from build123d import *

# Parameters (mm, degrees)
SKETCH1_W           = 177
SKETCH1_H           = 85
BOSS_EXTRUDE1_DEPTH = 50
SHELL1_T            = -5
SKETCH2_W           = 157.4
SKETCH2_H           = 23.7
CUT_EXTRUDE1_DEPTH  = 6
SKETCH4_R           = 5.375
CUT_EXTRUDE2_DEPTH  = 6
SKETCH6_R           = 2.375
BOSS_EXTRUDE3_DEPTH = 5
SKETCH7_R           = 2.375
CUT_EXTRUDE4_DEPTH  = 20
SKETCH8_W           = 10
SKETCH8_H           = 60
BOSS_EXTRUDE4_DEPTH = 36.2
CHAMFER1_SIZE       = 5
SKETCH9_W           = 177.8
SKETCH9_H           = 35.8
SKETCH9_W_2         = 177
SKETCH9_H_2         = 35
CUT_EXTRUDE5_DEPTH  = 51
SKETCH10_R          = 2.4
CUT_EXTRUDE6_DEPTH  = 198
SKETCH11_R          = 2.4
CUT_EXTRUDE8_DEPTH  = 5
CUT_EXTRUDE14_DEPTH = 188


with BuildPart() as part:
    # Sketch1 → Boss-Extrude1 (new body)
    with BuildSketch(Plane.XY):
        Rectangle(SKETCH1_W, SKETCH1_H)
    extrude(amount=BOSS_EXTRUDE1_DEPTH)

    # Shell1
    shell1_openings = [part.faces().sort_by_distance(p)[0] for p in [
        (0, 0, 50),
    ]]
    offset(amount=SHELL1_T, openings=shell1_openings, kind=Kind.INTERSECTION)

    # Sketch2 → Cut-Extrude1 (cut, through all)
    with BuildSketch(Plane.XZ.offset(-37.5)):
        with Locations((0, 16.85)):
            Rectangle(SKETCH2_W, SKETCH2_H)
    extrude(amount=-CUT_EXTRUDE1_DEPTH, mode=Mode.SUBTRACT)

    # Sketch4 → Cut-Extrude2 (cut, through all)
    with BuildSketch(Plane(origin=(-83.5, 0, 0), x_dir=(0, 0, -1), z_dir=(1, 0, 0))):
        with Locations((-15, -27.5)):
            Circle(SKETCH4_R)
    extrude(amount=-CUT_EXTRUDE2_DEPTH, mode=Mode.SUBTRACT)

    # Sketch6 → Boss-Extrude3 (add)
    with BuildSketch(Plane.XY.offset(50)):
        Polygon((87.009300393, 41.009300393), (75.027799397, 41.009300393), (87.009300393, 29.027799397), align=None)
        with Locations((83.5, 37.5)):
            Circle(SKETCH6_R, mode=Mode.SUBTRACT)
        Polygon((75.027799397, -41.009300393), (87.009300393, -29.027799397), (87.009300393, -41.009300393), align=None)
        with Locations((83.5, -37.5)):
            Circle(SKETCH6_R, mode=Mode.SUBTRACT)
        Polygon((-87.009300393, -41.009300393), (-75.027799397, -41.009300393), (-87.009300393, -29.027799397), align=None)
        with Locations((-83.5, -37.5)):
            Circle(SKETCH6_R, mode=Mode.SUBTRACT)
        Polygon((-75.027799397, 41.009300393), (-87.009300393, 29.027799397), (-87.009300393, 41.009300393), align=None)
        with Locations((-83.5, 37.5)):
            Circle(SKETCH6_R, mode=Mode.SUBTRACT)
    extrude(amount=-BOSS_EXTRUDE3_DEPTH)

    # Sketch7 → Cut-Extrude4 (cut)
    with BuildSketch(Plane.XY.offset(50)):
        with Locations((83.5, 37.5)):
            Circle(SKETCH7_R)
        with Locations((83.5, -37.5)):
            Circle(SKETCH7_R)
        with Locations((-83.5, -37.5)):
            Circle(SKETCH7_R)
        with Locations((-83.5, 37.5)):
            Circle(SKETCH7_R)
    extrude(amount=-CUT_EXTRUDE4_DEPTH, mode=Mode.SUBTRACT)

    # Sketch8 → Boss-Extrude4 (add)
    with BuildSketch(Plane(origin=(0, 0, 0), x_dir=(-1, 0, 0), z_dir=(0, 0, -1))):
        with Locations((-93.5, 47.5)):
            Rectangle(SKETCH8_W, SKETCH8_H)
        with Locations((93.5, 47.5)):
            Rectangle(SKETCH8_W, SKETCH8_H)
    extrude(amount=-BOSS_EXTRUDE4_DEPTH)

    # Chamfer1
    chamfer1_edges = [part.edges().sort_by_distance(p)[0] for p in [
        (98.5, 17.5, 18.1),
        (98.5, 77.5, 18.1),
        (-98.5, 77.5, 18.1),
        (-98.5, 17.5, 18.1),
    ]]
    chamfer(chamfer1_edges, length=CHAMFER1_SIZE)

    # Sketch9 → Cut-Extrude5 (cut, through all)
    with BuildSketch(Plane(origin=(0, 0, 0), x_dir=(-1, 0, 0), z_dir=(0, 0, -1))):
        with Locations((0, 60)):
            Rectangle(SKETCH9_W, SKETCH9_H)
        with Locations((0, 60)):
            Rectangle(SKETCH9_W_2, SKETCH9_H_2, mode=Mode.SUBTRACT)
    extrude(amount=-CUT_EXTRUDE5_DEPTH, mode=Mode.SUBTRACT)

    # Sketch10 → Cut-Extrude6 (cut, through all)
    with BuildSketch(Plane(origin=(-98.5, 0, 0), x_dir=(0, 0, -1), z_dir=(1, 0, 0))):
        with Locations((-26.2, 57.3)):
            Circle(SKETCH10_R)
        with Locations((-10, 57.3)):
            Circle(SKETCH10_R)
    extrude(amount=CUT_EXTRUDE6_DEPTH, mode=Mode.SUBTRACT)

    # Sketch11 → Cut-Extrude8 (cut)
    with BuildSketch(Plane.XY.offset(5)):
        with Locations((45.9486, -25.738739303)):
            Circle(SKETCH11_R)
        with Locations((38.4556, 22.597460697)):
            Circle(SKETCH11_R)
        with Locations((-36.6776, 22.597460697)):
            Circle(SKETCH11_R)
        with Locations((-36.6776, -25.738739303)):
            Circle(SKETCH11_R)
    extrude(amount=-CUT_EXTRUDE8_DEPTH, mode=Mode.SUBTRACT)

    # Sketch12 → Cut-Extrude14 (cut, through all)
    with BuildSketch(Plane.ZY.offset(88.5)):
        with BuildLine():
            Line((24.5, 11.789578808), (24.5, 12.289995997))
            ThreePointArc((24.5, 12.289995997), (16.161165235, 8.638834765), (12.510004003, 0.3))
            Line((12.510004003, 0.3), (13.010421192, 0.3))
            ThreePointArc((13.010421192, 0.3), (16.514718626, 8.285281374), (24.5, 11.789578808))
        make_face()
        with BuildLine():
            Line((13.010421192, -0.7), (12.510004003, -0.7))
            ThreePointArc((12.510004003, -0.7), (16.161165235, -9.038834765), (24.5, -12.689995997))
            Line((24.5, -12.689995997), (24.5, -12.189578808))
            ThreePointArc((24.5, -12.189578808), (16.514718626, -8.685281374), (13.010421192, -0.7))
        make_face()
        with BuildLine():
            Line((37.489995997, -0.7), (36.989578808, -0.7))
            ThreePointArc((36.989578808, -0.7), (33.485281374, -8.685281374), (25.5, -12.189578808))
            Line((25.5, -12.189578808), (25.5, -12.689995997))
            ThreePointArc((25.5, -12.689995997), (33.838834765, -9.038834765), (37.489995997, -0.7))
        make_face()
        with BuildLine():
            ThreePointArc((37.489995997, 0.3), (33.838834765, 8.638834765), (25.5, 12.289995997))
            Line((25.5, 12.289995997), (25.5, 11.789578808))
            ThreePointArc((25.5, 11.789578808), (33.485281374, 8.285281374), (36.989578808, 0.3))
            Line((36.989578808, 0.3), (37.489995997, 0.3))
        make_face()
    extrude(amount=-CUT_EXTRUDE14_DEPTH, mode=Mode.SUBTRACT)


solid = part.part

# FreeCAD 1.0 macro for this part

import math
import FreeCAD as App
import Part
import Sketcher
Q = App.Units.Quantity


def edges_at(feature, points):
    """Names of the edges that pass closest to the given points."""
    edges = feature.Shape.Edges
    near = lambda p: min(range(len(edges)), key=lambda i: edges[i].distToShape(Part.Vertex(*p))[0])
    return sorted({f"Edge{near(p) + 1}" for p in points})


def faces_at(feature, points):
    """Names of the faces that lie closest to the given points."""
    faces = feature.Shape.Faces
    near = lambda p: min(range(len(faces)), key=lambda i: faces[i].distToShape(Part.Vertex(*p))[0])
    return sorted({f"Face{near(p) + 1}" for p in points})


def add_polygon(sketch, points):
    """Adds a closed chain of lines whose ends are joined by coincident constraints."""
    first, n = sketch.GeometryCount, len(points)
    for a, b in zip(points, points[1:] + points[:1]):
        sketch.addGeometry(Part.LineSegment(App.Vector(*a, 0), App.Vector(*b, 0)), False)
    for i in range(n):
        sketch.addConstraint(Sketcher.Constraint("Coincident", first + i, 2, first + (i + 1) % n, 1))

doc = App.newDocument("Part")
body = doc.addObject("PartDesign::Body", "Body")

# Sketch on XY plane
sketch1 = body.newObject("Sketcher::SketchObject", "Sketch")
sketch1.AttachmentSupport = (doc.getObject("XY_Plane"), [""])
sketch1.MapMode = "FlatFace"
add_polygon(sketch1, [(-88.5, 42.5), (-88.5, -42.5), (88.5, -42.5), (88.5, 42.5)])  # lines 0-3
sketch1.addConstraint(Sketcher.Constraint("Vertical", 0))
sketch1.addConstraint(Sketcher.Constraint("Horizontal", 1))
sketch1.addConstraint(Sketcher.Constraint("Vertical", 2))
sketch1.addConstraint(Sketcher.Constraint("Horizontal", 3))
sketch1.addConstraint(Sketcher.Constraint("Symmetric", 0, 2, 2, 2, -1, 1))
sketch1.addConstraint(Sketcher.Constraint("DistanceX", 1, 1, 1, 2, Q("177 mm")))
sketch1.addConstraint(Sketcher.Constraint("DistanceY", 0, 2, 0, 1, Q("85 mm")))
pad1 = body.newObject("PartDesign::Pad", "Pad")
pad1.Profile = sketch1
pad1.Length = 50
doc.recompute()

thickness = body.newObject("PartDesign::Thickness", "Thickness")
thickness.Base = (pad1, faces_at(pad1, [(0, 0, 50)]))
thickness.Value = 5
thickness.Reversed = True
thickness.Join = "Intersection"

# Sketch on XZ plane
sketch2 = body.newObject("Sketcher::SketchObject", "Sketch001")
sketch2.AttachmentSupport = (doc.getObject("XZ_Plane"), [""])
sketch2.MapMode = "FlatFace"
sketch2.AttachmentOffset = App.Placement(App.Vector(0, 0, -37.5), App.Rotation())
add_polygon(sketch2, [(-78.7, 28.7), (-78.7, 5), (78.7, 5), (78.7, 28.7)])  # lines 0-3
sketch2.addConstraint(Sketcher.Constraint("Vertical", 0))
sketch2.addConstraint(Sketcher.Constraint("Horizontal", 1))
sketch2.addConstraint(Sketcher.Constraint("Vertical", 2))
sketch2.addConstraint(Sketcher.Constraint("Horizontal", 3))
sketch2.addConstraint(Sketcher.Constraint("DistanceX", 1, 1, 1, 2, Q("157.4 mm")))
sketch2.addConstraint(Sketcher.Constraint("DistanceY", 0, 2, 0, 1, Q("23.7 mm")))
sketch2.addConstraint(Sketcher.Constraint("DistanceY", -1, 1, 0, 2, Q("5 mm")))
sketch2.addConstraint(Sketcher.Constraint("DistanceX", 0, 2, -1, 1, Q("78.7 mm")))
pocket1 = body.newObject("PartDesign::Pocket", "Pocket")
pocket1.Profile = sketch2
pocket1.Type = "ThroughAll"

# Sketch on YZ plane
sketch3 = body.newObject("Sketcher::SketchObject", "Sketch002")
sketch3.AttachmentSupport = (doc.getObject("YZ_Plane"), [""])
sketch3.MapMode = "FlatFace"
sketch3.AttachmentOffset = App.Placement(App.Vector(0, 0, -83.5), App.Rotation())
sketch3.addGeometry(Part.Circle(App.Vector(-27.5, 15, 0), App.Vector(0, 0, 1), 5.375), False)
sketch3.addConstraint(Sketcher.Constraint("Diameter", 0, Q("10.75 mm")))
sketch3.addConstraint(Sketcher.Constraint("DistanceY", -1, 1, 0, 3, Q("15 mm")))
sketch3.addConstraint(Sketcher.Constraint("DistanceX", 0, 3, -1, 1, Q("27.5 mm")))
pocket2 = body.newObject("PartDesign::Pocket", "Pocket001")
pocket2.Profile = sketch3
pocket2.Type = "ThroughAll"

# Sketch on XY plane
sketch4 = body.newObject("Sketcher::SketchObject", "Sketch003")
sketch4.AttachmentSupport = (doc.getObject("XY_Plane"), [""])
sketch4.MapMode = "FlatFace"
sketch4.AttachmentOffset = App.Placement(App.Vector(0, 0, 50), App.Rotation())
add_polygon(sketch4, [(87.0093, 41.0093), (75.027799, 41.0093), (87.0093, 29.027799)])  # lines 0-2
sketch4.addGeometry(Part.Circle(App.Vector(83.5, 37.5, 0), App.Vector(0, 0, 1), 2.375), False)  # 3
add_polygon(sketch4, [(87.0093, -29.027799), (75.027799, -41.0093), (87.0093, -41.0093)])  # lines 4-6
sketch4.addGeometry(Part.Circle(App.Vector(83.5, -37.5, 0), App.Vector(0, 0, 1), 2.375), False)  # 7
add_polygon(sketch4, [(-87.0093, -41.0093), (-75.027799, -41.0093), (-87.0093, -29.027799)])  # lines 8-10
sketch4.addGeometry(Part.Circle(App.Vector(-83.5, -37.5, 0), App.Vector(0, 0, 1), 2.375), False)  # 11
add_polygon(sketch4, [(-87.0093, 29.027799), (-75.027799, 41.0093), (-87.0093, 41.0093)])  # lines 12-14
sketch4.addGeometry(Part.Circle(App.Vector(-83.5, 37.5, 0), App.Vector(0, 0, 1), 2.375), False)  # 15
sketch4.addConstraint(Sketcher.Constraint("Horizontal", 0))
sketch4.addConstraint(Sketcher.Constraint("Vertical", 2))
sketch4.addConstraint(Sketcher.Constraint("Horizontal", 5))
sketch4.addConstraint(Sketcher.Constraint("Vertical", 6))
sketch4.addConstraint(Sketcher.Constraint("Horizontal", 8))
sketch4.addConstraint(Sketcher.Constraint("Vertical", 10))
sketch4.addConstraint(Sketcher.Constraint("Horizontal", 13))
sketch4.addConstraint(Sketcher.Constraint("Vertical", 14))
sketch4.addConstraint(Sketcher.Constraint("Equal", 3, 7))
sketch4.addConstraint(Sketcher.Constraint("Equal", 7, 11))
sketch4.addConstraint(Sketcher.Constraint("Equal", 11, 15))
sketch4.addConstraint(Sketcher.Constraint("Symmetric", 3, 3, 11, 3, -1, 1))
sketch4.addConstraint(Sketcher.Constraint("Symmetric", 7, 3, 15, 3, -1, 1))
sketch4.addConstraint(Sketcher.Constraint("Symmetric", 0, 2, 8, 2, -1, 1))
sketch4.addConstraint(Sketcher.Constraint("Symmetric", 1, 2, 9, 2, -1, 1))
sketch4.addConstraint(Sketcher.Constraint("Symmetric", 4, 2, 12, 2, -1, 1))
sketch4.addConstraint(Sketcher.Constraint("Symmetric", 6, 2, 14, 2, -1, 1))
sketch4.addConstraint(Sketcher.Constraint("Symmetric", 7, 3, 11, 3, -2))
sketch4.addConstraint(Sketcher.Constraint("Symmetric", 4, 2, 8, 2, -2))
sketch4.addConstraint(Sketcher.Constraint("Symmetric", 6, 2, 9, 2, -2))
sketch4.addConstraint(Sketcher.Constraint("Perpendicular", 1, 4))
sketch4.addConstraint(Sketcher.Constraint("Diameter", 3, Q("4.75 mm")))
sketch4.addConstraint(Sketcher.Constraint("DistanceY", 7, 3, 3, 3, Q("75 mm")))
sketch4.addConstraint(Sketcher.Constraint("DistanceX", 11, 3, 7, 3, Q("167 mm")))
sketch4.addConstraint(Sketcher.Constraint("DistanceX", 0, 2, 0, 1, Q("11.981501 mm")))
sketch4.addConstraint(Sketcher.Constraint("DistanceX", -1, 1, 0, 2, Q("75.027799 mm")))
sketch4.addConstraint(Sketcher.Constraint("DistanceY", -1, 1, 0, 2, Q("41.0093 mm")))
pad2 = body.newObject("PartDesign::Pad", "Pad001")
pad2.Profile = sketch4
pad2.Length = 5
pad2.Reversed = True

# Sketch on XY plane
sketch5 = body.newObject("Sketcher::SketchObject", "Sketch004")
sketch5.AttachmentSupport = (doc.getObject("XY_Plane"), [""])
sketch5.MapMode = "FlatFace"
sketch5.AttachmentOffset = App.Placement(App.Vector(0, 0, 50), App.Rotation())
sketch5.addGeometry(Part.Circle(App.Vector(83.5, 37.5, 0), App.Vector(0, 0, 1), 2.375), False)
sketch5.addGeometry(Part.Circle(App.Vector(83.5, -37.5, 0), App.Vector(0, 0, 1), 2.375), False)
sketch5.addGeometry(Part.Circle(App.Vector(-83.5, -37.5, 0), App.Vector(0, 0, 1), 2.375), False)
sketch5.addGeometry(Part.Circle(App.Vector(-83.5, 37.5, 0), App.Vector(0, 0, 1), 2.375), False)
sketch5.addConstraint(Sketcher.Constraint("Equal", 0, 1))
sketch5.addConstraint(Sketcher.Constraint("Equal", 1, 2))
sketch5.addConstraint(Sketcher.Constraint("Equal", 2, 3))
sketch5.addConstraint(Sketcher.Constraint("Symmetric", 0, 3, 2, 3, -1, 1))
sketch5.addConstraint(Sketcher.Constraint("Symmetric", 1, 3, 3, 3, -1, 1))
sketch5.addConstraint(Sketcher.Constraint("Symmetric", 1, 3, 2, 3, -2))
sketch5.addConstraint(Sketcher.Constraint("Diameter", 0, Q("4.75 mm")))
sketch5.addConstraint(Sketcher.Constraint("DistanceY", 1, 3, 0, 3, Q("75 mm")))
sketch5.addConstraint(Sketcher.Constraint("DistanceX", 2, 3, 1, 3, Q("167 mm")))
pocket3 = body.newObject("PartDesign::Pocket", "Pocket002")
pocket3.Profile = sketch5
pocket3.Length = 20

# Sketch on XY plane
sketch6 = body.newObject("Sketcher::SketchObject", "Sketch005")
sketch6.AttachmentSupport = (doc.getObject("XY_Plane"), [""])
sketch6.MapMode = "FlatFace"
add_polygon(sketch6, [(98.5, 77.5), (98.5, 17.5), (88.5, 17.5), (88.5, 77.5)])  # lines 0-3
add_polygon(sketch6, [(-88.5, 77.5), (-88.5, 17.5), (-98.5, 17.5), (-98.5, 77.5)])  # lines 4-7
sketch6.addConstraint(Sketcher.Constraint("Vertical", 0))
sketch6.addConstraint(Sketcher.Constraint("Horizontal", 1))
sketch6.addConstraint(Sketcher.Constraint("Vertical", 2))
sketch6.addConstraint(Sketcher.Constraint("Horizontal", 3))
sketch6.addConstraint(Sketcher.Constraint("Vertical", 4))
sketch6.addConstraint(Sketcher.Constraint("Horizontal", 5))
sketch6.addConstraint(Sketcher.Constraint("Vertical", 6))
sketch6.addConstraint(Sketcher.Constraint("Horizontal", 7))
sketch6.addConstraint(Sketcher.Constraint("Symmetric", 1, 2, 4, 2, -2))
sketch6.addConstraint(Sketcher.Constraint("Symmetric", 3, 2, 6, 2, -2))
sketch6.addConstraint(Sketcher.Constraint("DistanceX", 1, 2, 1, 1, Q("10 mm")))
sketch6.addConstraint(Sketcher.Constraint("DistanceY", 0, 2, 0, 1, Q("60 mm")))
sketch6.addConstraint(Sketcher.Constraint("DistanceX", 4, 2, 1, 2, Q("177 mm")))
sketch6.addConstraint(Sketcher.Constraint("DistanceY", -1, 1, 0, 2, Q("17.5 mm")))
pad3 = body.newObject("PartDesign::Pad", "Pad002")
pad3.Profile = sketch6
pad3.Length = 36.2
doc.recompute()

chamfer = body.newObject("PartDesign::Chamfer", "Chamfer")
chamfer.Base = (pad3, edges_at(pad3, [
    (98.5, 17.5, 18.1),
    (98.5, 77.5, 18.1),
    (-98.5, 77.5, 18.1),
    (-98.5, 17.5, 18.1),
]))
chamfer.Size = 5

# Sketch on XY plane
sketch7 = body.newObject("Sketcher::SketchObject", "Sketch006")
sketch7.AttachmentSupport = (doc.getObject("XY_Plane"), [""])
sketch7.MapMode = "FlatFace"
add_polygon(sketch7, [(88.9, 77.9), (88.9, 42.1), (-88.9, 42.1), (-88.9, 77.9)])  # lines 0-3
add_polygon(sketch7, [(-88.5, 42.5), (88.5, 42.5), (88.5, 77.5), (-88.5, 77.5)])  # lines 4-7
sketch7.addConstraint(Sketcher.Constraint("Vertical", 0))
sketch7.addConstraint(Sketcher.Constraint("Horizontal", 1))
sketch7.addConstraint(Sketcher.Constraint("Vertical", 2))
sketch7.addConstraint(Sketcher.Constraint("Horizontal", 3))
sketch7.addConstraint(Sketcher.Constraint("Horizontal", 4))
sketch7.addConstraint(Sketcher.Constraint("Vertical", 5))
sketch7.addConstraint(Sketcher.Constraint("Horizontal", 6))
sketch7.addConstraint(Sketcher.Constraint("Vertical", 7))
sketch7.addConstraint(Sketcher.Constraint("DistanceX", 4, 1, 4, 2, Q("177 mm")))
sketch7.addConstraint(Sketcher.Constraint("DistanceY", 5, 1, 5, 2, Q("35 mm")))
sketch7.addConstraint(Sketcher.Constraint("DistanceX", 1, 2, 1, 1, Q("177.8 mm")))
sketch7.addConstraint(Sketcher.Constraint("DistanceY", 0, 2, 0, 1, Q("35.8 mm")))
sketch7.addConstraint(Sketcher.Constraint("DistanceX", -1, 1, 0, 2, Q("88.9 mm")))
sketch7.addConstraint(Sketcher.Constraint("DistanceY", -1, 1, 0, 2, Q("42.1 mm")))
sketch7.addConstraint(Sketcher.Constraint("DistanceX", -1, 1, 4, 2, Q("88.5 mm")))
sketch7.addConstraint(Sketcher.Constraint("DistanceY", -1, 1, 4, 2, Q("42.5 mm")))
pocket4 = body.newObject("PartDesign::Pocket", "Pocket003")
pocket4.Profile = sketch7
pocket4.Type = "ThroughAll"
pocket4.Reversed = True

# Sketch on YZ plane
sketch8 = body.newObject("Sketcher::SketchObject", "Sketch007")
sketch8.AttachmentSupport = (doc.getObject("YZ_Plane"), [""])
sketch8.MapMode = "FlatFace"
sketch8.AttachmentOffset = App.Placement(App.Vector(0, 0, -98.5), App.Rotation())
sketch8.addGeometry(Part.Circle(App.Vector(57.3, 26.2, 0), App.Vector(0, 0, 1), 2.4), False)
sketch8.addGeometry(Part.Circle(App.Vector(57.3, 10, 0), App.Vector(0, 0, 1), 2.4), False)
sketch8.addConstraint(Sketcher.Constraint("Equal", 0, 1))
sketch8.addConstraint(Sketcher.Constraint("Vertical", 0, 3, 1, 3))
sketch8.addConstraint(Sketcher.Constraint("Diameter", 0, Q("4.8 mm")))
sketch8.addConstraint(Sketcher.Constraint("DistanceY", -1, 1, 1, 3, Q("10 mm")))
sketch8.addConstraint(Sketcher.Constraint("DistanceX", -1, 1, 0, 3, Q("57.3 mm")))
sketch8.addConstraint(Sketcher.Constraint("DistanceY", -1, 1, 0, 3, Q("26.2 mm")))
pocket5 = body.newObject("PartDesign::Pocket", "Pocket004")
pocket5.Profile = sketch8
pocket5.Type = "ThroughAll"
pocket5.Reversed = True

# Sketch on XY plane
sketch9 = body.newObject("Sketcher::SketchObject", "Sketch008")
sketch9.AttachmentSupport = (doc.getObject("XY_Plane"), [""])
sketch9.MapMode = "FlatFace"
sketch9.AttachmentOffset = App.Placement(App.Vector(0, 0, 5), App.Rotation())
sketch9.addGeometry(Part.Circle(App.Vector(45.9486, -25.738739, 0), App.Vector(0, 0, 1), 2.4), False)
sketch9.addGeometry(Part.Circle(App.Vector(38.4556, 22.597461, 0), App.Vector(0, 0, 1), 2.4), False)
sketch9.addGeometry(Part.Circle(App.Vector(-36.6776, 22.597461, 0), App.Vector(0, 0, 1), 2.4), False)
sketch9.addGeometry(Part.Circle(App.Vector(-36.6776, -25.738739, 0), App.Vector(0, 0, 1), 2.4), False)
sketch9.addConstraint(Sketcher.Constraint("Equal", 0, 1))
sketch9.addConstraint(Sketcher.Constraint("Equal", 1, 2))
sketch9.addConstraint(Sketcher.Constraint("Equal", 2, 3))
sketch9.addConstraint(Sketcher.Constraint("Horizontal", 1, 3, 2, 3))
sketch9.addConstraint(Sketcher.Constraint("Horizontal", 0, 3, 3, 3))
sketch9.addConstraint(Sketcher.Constraint("Vertical", 2, 3, 3, 3))
sketch9.addConstraint(Sketcher.Constraint("Diameter", 0, Q("4.8 mm")))
sketch9.addConstraint(Sketcher.Constraint("DistanceX", 1, 3, 0, 3, Q("7.493 mm")))
sketch9.addConstraint(Sketcher.Constraint("DistanceX", -1, 1, 0, 3, Q("45.9486 mm")))
sketch9.addConstraint(Sketcher.Constraint("DistanceX", 2, 3, -1, 1, Q("36.6776 mm")))
sketch9.addConstraint(Sketcher.Constraint("DistanceY", 0, 3, 1, 3, Q("48.3362 mm")))
sketch9.addConstraint(Sketcher.Constraint("DistanceY", 0, 3, -1, 1, Q("25.738739 mm")))
pocket6 = body.newObject("PartDesign::Pocket", "Pocket005")
pocket6.Profile = sketch9
pocket6.Length = 5

# Sketch on YZ plane
sketch10 = body.newObject("Sketcher::SketchObject", "Sketch009")
sketch10.AttachmentSupport = (doc.getObject("YZ_Plane"), [""])
sketch10.MapMode = "FlatFace"
sketch10.AttachmentOffset = App.Placement(App.Vector(0, 0, -88.5), App.Rotation())
sketch10.addGeometry(Part.LineSegment(App.Vector(11.789579, 24.5, 0), App.Vector(12.289996, 24.5, 0)), False)
sketch10.addGeometry(Part.ArcOfCircle(Part.Circle(App.Vector(-0.2, 25, 0), App.Vector(0, 0, 1), 12.5), math.radians(-87.707557), math.radians(-2.292443)), False)
sketch10.addGeometry(Part.LineSegment(App.Vector(0.3, 12.510004, 0), App.Vector(0.3, 13.010421, 0)), False)
sketch10.addGeometry(Part.ArcOfCircle(Part.Circle(App.Vector(-0.2, 25, 0), App.Vector(0, 0, 1), 12), math.radians(-87.611985), math.radians(-2.388015)), False)
sketch10.addGeometry(Part.LineSegment(App.Vector(-0.7, 13.010421, 0), App.Vector(-0.7, 12.510004, 0)), False)
sketch10.addGeometry(Part.ArcOfCircle(Part.Circle(App.Vector(-0.2, 25, 0), App.Vector(0, 0, 1), 12.5), math.radians(-177.707557), math.radians(-92.292443)), False)
sketch10.addGeometry(Part.LineSegment(App.Vector(-12.689996, 24.5, 0), App.Vector(-12.189579, 24.5, 0)), False)
sketch10.addGeometry(Part.ArcOfCircle(Part.Circle(App.Vector(-0.2, 25, 0), App.Vector(0, 0, 1), 12), math.radians(-177.611985), math.radians(-92.388015)), False)
sketch10.addGeometry(Part.LineSegment(App.Vector(-0.7, 37.489996, 0), App.Vector(-0.7, 36.989579, 0)), False)
sketch10.addGeometry(Part.ArcOfCircle(Part.Circle(App.Vector(-0.2, 25, 0), App.Vector(0, 0, 1), 12), math.radians(92.388015), math.radians(177.611985)), False)
sketch10.addGeometry(Part.LineSegment(App.Vector(-12.189579, 25.5, 0), App.Vector(-12.689996, 25.5, 0)), False)
sketch10.addGeometry(Part.ArcOfCircle(Part.Circle(App.Vector(-0.2, 25, 0), App.Vector(0, 0, 1), 12.5), math.radians(92.292443), math.radians(177.707557)), False)
sketch10.addGeometry(Part.ArcOfCircle(Part.Circle(App.Vector(-0.2, 25, 0), App.Vector(0, 0, 1), 12.5), math.radians(2.292443), math.radians(87.707557)), False)
sketch10.addGeometry(Part.LineSegment(App.Vector(12.289996, 25.5, 0), App.Vector(11.789579, 25.5, 0)), False)
sketch10.addGeometry(Part.ArcOfCircle(Part.Circle(App.Vector(-0.2, 25, 0), App.Vector(0, 0, 1), 12), math.radians(2.388015), math.radians(87.611985)), False)
sketch10.addGeometry(Part.LineSegment(App.Vector(0.3, 36.989579, 0), App.Vector(0.3, 37.489996, 0)), False)
sketch10.addConstraint(Sketcher.Constraint("Coincident", 0, 2, 1, 2))
sketch10.addConstraint(Sketcher.Constraint("Coincident", 1, 1, 2, 1))
sketch10.addConstraint(Sketcher.Constraint("Coincident", 2, 2, 3, 1))
sketch10.addConstraint(Sketcher.Constraint("Coincident", 3, 2, 0, 1))
sketch10.addConstraint(Sketcher.Constraint("Coincident", 4, 2, 5, 2))
sketch10.addConstraint(Sketcher.Constraint("Coincident", 5, 1, 6, 1))
sketch10.addConstraint(Sketcher.Constraint("Coincident", 6, 2, 7, 1))
sketch10.addConstraint(Sketcher.Constraint("Coincident", 7, 2, 4, 1))
sketch10.addConstraint(Sketcher.Constraint("Coincident", 8, 2, 9, 1))
sketch10.addConstraint(Sketcher.Constraint("Coincident", 9, 2, 10, 1))
sketch10.addConstraint(Sketcher.Constraint("Coincident", 10, 2, 11, 2))
sketch10.addConstraint(Sketcher.Constraint("Coincident", 11, 1, 8, 1))
sketch10.addConstraint(Sketcher.Constraint("Coincident", 12, 1, 13, 1))
sketch10.addConstraint(Sketcher.Constraint("Coincident", 13, 2, 14, 1))
sketch10.addConstraint(Sketcher.Constraint("Coincident", 14, 2, 15, 1))
sketch10.addConstraint(Sketcher.Constraint("Coincident", 15, 2, 12, 2))
sketch10.addConstraint(Sketcher.Constraint("Horizontal", 0))
sketch10.addConstraint(Sketcher.Constraint("Vertical", 2))
sketch10.addConstraint(Sketcher.Constraint("Vertical", 4))
sketch10.addConstraint(Sketcher.Constraint("Horizontal", 6))
sketch10.addConstraint(Sketcher.Constraint("Vertical", 8))
sketch10.addConstraint(Sketcher.Constraint("Horizontal", 10))
sketch10.addConstraint(Sketcher.Constraint("Horizontal", 13))
sketch10.addConstraint(Sketcher.Constraint("Vertical", 15))
sketch10.addConstraint(Sketcher.Constraint("Coincident", 3, 3, 1, 3))
sketch10.addConstraint(Sketcher.Constraint("Coincident", 5, 3, 1, 3))
sketch10.addConstraint(Sketcher.Constraint("Coincident", 7, 3, 1, 3))
sketch10.addConstraint(Sketcher.Constraint("Coincident", 9, 3, 1, 3))
sketch10.addConstraint(Sketcher.Constraint("Coincident", 11, 3, 1, 3))
sketch10.addConstraint(Sketcher.Constraint("Coincident", 12, 3, 1, 3))
sketch10.addConstraint(Sketcher.Constraint("Coincident", 14, 3, 1, 3))
sketch10.addConstraint(Sketcher.Constraint("Equal", 1, 5))
sketch10.addConstraint(Sketcher.Constraint("Equal", 3, 7))
sketch10.addConstraint(Sketcher.Constraint("Equal", 7, 9))
sketch10.addConstraint(Sketcher.Constraint("Equal", 5, 11))
sketch10.addConstraint(Sketcher.Constraint("Equal", 11, 12))
sketch10.addConstraint(Sketcher.Constraint("Equal", 9, 14))
sketch10.addConstraint(Sketcher.Constraint("Horizontal", 1, 1, 4, 2))
sketch10.addConstraint(Sketcher.Constraint("Horizontal", 3, 2, 5, 1))
sketch10.addConstraint(Sketcher.Constraint("Horizontal", 10, 2, 12, 1))
sketch10.addConstraint(Sketcher.Constraint("Horizontal", 8, 2, 14, 2))
sketch10.addConstraint(Sketcher.Constraint("Vertical", 7, 2, 8, 2))
sketch10.addConstraint(Sketcher.Constraint("Vertical", 6, 2, 9, 2))
sketch10.addConstraint(Sketcher.Constraint("Radius", 3, Q("12 mm")))
sketch10.addConstraint(Sketcher.Constraint("Radius", 1, Q("12.5 mm")))
sketch10.addConstraint(Sketcher.Constraint("DistanceY", -1, 1, 1, 3, Q("25 mm")))
sketch10.addConstraint(Sketcher.Constraint("DistanceX", 4, 2, 1, 1, Q("1 mm")))
sketch10.addConstraint(Sketcher.Constraint("DistanceY", 6, 2, 9, 2, Q("1 mm")))
sketch10.addConstraint(Sketcher.Constraint("DistanceX", 1, 3, -1, 1, Q("0.2 mm")))
pocket7 = body.newObject("PartDesign::Pocket", "Pocket006")
pocket7.Profile = sketch10
pocket7.Type = "ThroughAll"
pocket7.Reversed = True

doc.recompute()
